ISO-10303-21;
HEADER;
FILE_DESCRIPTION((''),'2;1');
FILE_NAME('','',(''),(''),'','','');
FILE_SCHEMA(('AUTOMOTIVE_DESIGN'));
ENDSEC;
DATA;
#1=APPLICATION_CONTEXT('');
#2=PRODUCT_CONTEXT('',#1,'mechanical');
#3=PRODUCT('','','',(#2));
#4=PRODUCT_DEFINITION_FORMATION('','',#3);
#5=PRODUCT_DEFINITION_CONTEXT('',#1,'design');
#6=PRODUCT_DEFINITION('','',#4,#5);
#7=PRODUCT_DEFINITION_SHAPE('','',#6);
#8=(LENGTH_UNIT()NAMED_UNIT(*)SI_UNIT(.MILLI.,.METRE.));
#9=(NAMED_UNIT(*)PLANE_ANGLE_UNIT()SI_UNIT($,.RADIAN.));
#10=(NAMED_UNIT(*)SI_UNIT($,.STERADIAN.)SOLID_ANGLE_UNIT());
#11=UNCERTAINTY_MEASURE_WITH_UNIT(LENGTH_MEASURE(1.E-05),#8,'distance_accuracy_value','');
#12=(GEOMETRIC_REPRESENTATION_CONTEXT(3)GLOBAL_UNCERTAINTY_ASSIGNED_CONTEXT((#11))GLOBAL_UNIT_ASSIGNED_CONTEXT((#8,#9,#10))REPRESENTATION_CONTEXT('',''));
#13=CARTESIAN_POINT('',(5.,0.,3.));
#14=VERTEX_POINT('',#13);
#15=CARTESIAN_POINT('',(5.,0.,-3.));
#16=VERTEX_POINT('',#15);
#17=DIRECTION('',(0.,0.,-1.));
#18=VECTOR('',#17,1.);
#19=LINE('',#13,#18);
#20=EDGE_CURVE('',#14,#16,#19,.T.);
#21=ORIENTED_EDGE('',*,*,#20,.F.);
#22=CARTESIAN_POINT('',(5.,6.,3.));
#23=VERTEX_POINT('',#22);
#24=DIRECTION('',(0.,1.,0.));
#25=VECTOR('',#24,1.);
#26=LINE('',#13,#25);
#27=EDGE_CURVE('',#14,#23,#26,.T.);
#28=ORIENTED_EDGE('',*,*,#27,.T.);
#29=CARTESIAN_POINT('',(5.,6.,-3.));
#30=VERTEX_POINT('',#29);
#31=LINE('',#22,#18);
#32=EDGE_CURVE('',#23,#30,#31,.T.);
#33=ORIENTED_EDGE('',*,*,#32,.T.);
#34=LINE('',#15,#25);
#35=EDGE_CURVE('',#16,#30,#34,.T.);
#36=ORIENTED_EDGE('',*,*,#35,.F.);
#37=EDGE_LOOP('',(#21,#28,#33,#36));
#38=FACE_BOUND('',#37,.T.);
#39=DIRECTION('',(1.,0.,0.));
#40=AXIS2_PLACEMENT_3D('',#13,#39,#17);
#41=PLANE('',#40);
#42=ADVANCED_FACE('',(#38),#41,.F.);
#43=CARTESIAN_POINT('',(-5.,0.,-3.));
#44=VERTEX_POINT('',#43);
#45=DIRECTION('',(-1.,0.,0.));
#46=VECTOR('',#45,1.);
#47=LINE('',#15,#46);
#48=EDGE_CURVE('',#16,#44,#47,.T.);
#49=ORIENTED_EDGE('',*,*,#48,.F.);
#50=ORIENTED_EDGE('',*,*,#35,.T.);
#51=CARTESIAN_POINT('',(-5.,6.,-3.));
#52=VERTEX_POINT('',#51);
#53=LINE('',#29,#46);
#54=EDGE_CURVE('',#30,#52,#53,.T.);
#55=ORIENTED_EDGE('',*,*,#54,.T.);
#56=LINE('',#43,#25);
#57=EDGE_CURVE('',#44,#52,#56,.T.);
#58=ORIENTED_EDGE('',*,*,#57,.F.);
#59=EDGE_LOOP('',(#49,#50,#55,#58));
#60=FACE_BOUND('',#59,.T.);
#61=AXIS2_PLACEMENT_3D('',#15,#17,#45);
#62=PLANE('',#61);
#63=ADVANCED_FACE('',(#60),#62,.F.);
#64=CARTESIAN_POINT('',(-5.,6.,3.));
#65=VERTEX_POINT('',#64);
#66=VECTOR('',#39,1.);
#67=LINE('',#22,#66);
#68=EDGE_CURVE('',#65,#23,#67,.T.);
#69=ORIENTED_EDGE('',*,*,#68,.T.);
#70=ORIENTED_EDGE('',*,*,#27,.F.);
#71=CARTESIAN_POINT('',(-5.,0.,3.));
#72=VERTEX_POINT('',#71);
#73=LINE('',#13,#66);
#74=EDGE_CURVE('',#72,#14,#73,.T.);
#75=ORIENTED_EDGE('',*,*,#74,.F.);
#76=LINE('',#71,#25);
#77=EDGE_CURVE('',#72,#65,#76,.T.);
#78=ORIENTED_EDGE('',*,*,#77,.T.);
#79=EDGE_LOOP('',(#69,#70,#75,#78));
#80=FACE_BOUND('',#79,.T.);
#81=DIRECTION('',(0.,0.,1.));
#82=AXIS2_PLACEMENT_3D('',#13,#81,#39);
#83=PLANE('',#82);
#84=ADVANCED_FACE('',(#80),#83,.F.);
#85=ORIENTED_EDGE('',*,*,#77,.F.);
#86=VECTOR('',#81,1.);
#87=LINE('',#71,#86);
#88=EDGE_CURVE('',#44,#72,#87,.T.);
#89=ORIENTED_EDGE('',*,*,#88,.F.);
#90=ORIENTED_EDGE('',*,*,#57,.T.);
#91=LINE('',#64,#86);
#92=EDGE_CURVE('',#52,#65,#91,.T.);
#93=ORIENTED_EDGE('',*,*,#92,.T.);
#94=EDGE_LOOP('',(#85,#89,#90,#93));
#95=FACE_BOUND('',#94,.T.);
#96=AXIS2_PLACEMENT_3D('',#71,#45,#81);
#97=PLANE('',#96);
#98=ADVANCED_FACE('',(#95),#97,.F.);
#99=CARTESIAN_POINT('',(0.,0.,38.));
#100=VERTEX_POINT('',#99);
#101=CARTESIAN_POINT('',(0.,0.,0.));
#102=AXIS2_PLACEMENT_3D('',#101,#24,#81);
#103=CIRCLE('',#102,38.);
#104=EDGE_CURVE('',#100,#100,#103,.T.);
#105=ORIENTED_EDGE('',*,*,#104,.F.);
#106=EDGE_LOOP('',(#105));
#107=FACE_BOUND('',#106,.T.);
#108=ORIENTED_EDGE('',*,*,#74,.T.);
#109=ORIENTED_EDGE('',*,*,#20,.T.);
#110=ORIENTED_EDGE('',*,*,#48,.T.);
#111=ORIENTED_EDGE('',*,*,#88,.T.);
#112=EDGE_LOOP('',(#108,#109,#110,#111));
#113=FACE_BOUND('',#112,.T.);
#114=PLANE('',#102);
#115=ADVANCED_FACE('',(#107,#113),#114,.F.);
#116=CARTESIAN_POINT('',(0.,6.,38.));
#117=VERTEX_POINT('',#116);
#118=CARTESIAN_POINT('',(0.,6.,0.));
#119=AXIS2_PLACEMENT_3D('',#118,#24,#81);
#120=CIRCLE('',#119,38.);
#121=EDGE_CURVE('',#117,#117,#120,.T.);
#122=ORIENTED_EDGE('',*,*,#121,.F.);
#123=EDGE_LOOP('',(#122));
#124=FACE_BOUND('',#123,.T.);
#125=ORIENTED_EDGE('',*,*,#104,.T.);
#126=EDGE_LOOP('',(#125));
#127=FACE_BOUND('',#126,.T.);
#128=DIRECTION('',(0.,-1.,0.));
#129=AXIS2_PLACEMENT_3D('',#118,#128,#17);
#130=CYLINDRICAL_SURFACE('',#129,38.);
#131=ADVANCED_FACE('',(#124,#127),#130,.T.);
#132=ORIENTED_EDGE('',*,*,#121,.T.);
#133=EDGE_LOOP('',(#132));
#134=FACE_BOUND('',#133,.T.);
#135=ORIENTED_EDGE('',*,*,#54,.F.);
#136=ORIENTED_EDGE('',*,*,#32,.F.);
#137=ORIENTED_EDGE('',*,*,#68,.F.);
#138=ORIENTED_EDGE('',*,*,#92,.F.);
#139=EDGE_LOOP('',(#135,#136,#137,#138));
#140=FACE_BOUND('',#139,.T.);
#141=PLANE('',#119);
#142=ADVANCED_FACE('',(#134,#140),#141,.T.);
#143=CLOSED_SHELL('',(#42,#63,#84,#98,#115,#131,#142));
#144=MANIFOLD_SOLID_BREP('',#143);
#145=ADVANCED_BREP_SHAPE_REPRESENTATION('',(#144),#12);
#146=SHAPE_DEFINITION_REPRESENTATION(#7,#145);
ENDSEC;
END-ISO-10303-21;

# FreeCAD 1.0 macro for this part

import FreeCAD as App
import Part
import Sketcher
Q = App.Units.Quantity


def add_polygon(sketch, points):
    """Adds a closed chain of lines whose ends are joined by coincident constraints."""
    first, n = sketch.GeometryCount, len(points)
    for a, b in zip(points, points[1:] + points[:1]):
        sketch.addGeometry(Part.LineSegment(App.Vector(*a, 0), App.Vector(*b, 0)), False)
    for i in range(n):
        sketch.addConstraint(Sketcher.Constraint("Coincident", first + i, 2, first + (i + 1) % n, 1))

doc = App.newDocument("Part")
body = doc.addObject("PartDesign::Body", "Body")

# Sketch on XZ plane
sketch1 = doc.addObject("Sketcher::SketchObject", "Sketch")
body.addObject(sketch1)
sketch1.AttachmentSupport = (doc.XZ_Plane, [""])
sketch1.MapMode = "FlatFace"
sketch1.addGeometry(Part.Circle(App.Vector(0, 0, 0), App.Vector(0, 0, 1), 38), False)
sketch1.addConstraint(Sketcher.Constraint("Coincident", 0, 3, -1, 1))
sketch1.addConstraint(Sketcher.Constraint("Diameter", 0, Q("76 mm")))
pad1 = doc.addObject("PartDesign::Pad", "Pad")
body.addObject(pad1)
pad1.Profile = sketch1
pad1.Length = 6
pad1.Reversed = True

# Sketch on XZ plane
sketch2 = doc.addObject("Sketcher::SketchObject", "Sketch001")
body.addObject(sketch2)
sketch2.AttachmentSupport = (doc.XZ_Plane, [""])
sketch2.MapMode = "FlatFace"
sketch2.AttachmentOffset = App.Placement(App.Vector(0, 0, -6), App.Rotation())
add_polygon(sketch2, [(-5, -3), (-5, 3), (5, 3), (5, -3)])  # lines 0-3
sketch2.addConstraint(Sketcher.Constraint("Vertical", 0))
sketch2.addConstraint(Sketcher.Constraint("Horizontal", 1))
sketch2.addConstraint(Sketcher.Constraint("Vertical", 2))
sketch2.addConstraint(Sketcher.Constraint("Horizontal", 3))
sketch2.addConstraint(Sketcher.Constraint("Symmetric", 0, 2, 2, 2, -1, 1))
sketch2.addConstraint(Sketcher.Constraint("DistanceX", 1, 1, 1, 2, Q("10 mm")))
sketch2.addConstraint(Sketcher.Constraint("DistanceY", 0, 1, 0, 2, Q("6 mm")))
pocket1 = doc.addObject("PartDesign::Pocket", "Pocket")
body.addObject(pocket1)
pocket1.Profile = sketch2
pocket1.Length = 6
pocket1.Reversed = True

doc.recompute()
